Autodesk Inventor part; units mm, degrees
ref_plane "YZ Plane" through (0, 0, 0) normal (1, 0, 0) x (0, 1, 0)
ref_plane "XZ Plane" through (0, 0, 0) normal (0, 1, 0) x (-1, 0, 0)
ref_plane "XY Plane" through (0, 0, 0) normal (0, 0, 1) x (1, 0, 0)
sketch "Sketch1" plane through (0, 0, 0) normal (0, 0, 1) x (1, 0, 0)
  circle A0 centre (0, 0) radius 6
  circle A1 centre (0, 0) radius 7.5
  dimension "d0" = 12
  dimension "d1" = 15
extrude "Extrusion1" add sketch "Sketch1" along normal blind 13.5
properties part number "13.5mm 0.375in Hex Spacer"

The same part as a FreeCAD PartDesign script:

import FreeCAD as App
import Part
import Sketcher
from FreeCAD import Vector
Q = App.Units.Quantity

doc = App.newDocument("Part")
params = doc.addObject("Spreadsheet::Sheet", "Params")
for row, (alias, value) in enumerate([
    ("sketch1_diameter", "15 mm"),
    ("sketch1_diameter2", "12 mm"),
    ("pad1_length", "13.5 mm"),
], start=1):
    params.set(f"A{row}", alias)
    params.set(f"B{row}", "=" + value)
    params.setAlias(f"B{row}", alias)

body = doc.addObject("PartDesign::Body", "Body")

# Sketch on XY plane
sketch1 = body.newObject("Sketcher::SketchObject", "Sketch")
sketch1.AttachmentSupport = (doc.getObject("XY_Plane"), [""])
sketch1.MapMode = "FlatFace"
sketch1.addGeometry(Part.Circle(Vector(0, 0, 0), Vector(0, 0, 1), 7.5), False)
sketch1.addGeometry(Part.Circle(Vector(0, 0, 0), Vector(0, 0, 1), 6), False)
sketch1.addConstraint(Sketcher.Constraint("Coincident", 0, 3, -1, 1))
sketch1.addConstraint(Sketcher.Constraint("Coincident", 1, 3, -1, 1))
sketch1.addConstraint(Sketcher.Constraint("Diameter", 0, Q("15 mm")))
sketch1.addConstraint(Sketcher.Constraint("Diameter", 1, Q("12 mm")))
sketch1.setExpression("Constraints[2]", "Params.sketch1_diameter")
sketch1.setExpression("Constraints[3]", "Params.sketch1_diameter2")
pad1 = body.newObject("PartDesign::Pad", "Pad")
pad1.Profile = sketch1
pad1.setExpression("Length", "Params.pad1_length")

doc.recompute()
